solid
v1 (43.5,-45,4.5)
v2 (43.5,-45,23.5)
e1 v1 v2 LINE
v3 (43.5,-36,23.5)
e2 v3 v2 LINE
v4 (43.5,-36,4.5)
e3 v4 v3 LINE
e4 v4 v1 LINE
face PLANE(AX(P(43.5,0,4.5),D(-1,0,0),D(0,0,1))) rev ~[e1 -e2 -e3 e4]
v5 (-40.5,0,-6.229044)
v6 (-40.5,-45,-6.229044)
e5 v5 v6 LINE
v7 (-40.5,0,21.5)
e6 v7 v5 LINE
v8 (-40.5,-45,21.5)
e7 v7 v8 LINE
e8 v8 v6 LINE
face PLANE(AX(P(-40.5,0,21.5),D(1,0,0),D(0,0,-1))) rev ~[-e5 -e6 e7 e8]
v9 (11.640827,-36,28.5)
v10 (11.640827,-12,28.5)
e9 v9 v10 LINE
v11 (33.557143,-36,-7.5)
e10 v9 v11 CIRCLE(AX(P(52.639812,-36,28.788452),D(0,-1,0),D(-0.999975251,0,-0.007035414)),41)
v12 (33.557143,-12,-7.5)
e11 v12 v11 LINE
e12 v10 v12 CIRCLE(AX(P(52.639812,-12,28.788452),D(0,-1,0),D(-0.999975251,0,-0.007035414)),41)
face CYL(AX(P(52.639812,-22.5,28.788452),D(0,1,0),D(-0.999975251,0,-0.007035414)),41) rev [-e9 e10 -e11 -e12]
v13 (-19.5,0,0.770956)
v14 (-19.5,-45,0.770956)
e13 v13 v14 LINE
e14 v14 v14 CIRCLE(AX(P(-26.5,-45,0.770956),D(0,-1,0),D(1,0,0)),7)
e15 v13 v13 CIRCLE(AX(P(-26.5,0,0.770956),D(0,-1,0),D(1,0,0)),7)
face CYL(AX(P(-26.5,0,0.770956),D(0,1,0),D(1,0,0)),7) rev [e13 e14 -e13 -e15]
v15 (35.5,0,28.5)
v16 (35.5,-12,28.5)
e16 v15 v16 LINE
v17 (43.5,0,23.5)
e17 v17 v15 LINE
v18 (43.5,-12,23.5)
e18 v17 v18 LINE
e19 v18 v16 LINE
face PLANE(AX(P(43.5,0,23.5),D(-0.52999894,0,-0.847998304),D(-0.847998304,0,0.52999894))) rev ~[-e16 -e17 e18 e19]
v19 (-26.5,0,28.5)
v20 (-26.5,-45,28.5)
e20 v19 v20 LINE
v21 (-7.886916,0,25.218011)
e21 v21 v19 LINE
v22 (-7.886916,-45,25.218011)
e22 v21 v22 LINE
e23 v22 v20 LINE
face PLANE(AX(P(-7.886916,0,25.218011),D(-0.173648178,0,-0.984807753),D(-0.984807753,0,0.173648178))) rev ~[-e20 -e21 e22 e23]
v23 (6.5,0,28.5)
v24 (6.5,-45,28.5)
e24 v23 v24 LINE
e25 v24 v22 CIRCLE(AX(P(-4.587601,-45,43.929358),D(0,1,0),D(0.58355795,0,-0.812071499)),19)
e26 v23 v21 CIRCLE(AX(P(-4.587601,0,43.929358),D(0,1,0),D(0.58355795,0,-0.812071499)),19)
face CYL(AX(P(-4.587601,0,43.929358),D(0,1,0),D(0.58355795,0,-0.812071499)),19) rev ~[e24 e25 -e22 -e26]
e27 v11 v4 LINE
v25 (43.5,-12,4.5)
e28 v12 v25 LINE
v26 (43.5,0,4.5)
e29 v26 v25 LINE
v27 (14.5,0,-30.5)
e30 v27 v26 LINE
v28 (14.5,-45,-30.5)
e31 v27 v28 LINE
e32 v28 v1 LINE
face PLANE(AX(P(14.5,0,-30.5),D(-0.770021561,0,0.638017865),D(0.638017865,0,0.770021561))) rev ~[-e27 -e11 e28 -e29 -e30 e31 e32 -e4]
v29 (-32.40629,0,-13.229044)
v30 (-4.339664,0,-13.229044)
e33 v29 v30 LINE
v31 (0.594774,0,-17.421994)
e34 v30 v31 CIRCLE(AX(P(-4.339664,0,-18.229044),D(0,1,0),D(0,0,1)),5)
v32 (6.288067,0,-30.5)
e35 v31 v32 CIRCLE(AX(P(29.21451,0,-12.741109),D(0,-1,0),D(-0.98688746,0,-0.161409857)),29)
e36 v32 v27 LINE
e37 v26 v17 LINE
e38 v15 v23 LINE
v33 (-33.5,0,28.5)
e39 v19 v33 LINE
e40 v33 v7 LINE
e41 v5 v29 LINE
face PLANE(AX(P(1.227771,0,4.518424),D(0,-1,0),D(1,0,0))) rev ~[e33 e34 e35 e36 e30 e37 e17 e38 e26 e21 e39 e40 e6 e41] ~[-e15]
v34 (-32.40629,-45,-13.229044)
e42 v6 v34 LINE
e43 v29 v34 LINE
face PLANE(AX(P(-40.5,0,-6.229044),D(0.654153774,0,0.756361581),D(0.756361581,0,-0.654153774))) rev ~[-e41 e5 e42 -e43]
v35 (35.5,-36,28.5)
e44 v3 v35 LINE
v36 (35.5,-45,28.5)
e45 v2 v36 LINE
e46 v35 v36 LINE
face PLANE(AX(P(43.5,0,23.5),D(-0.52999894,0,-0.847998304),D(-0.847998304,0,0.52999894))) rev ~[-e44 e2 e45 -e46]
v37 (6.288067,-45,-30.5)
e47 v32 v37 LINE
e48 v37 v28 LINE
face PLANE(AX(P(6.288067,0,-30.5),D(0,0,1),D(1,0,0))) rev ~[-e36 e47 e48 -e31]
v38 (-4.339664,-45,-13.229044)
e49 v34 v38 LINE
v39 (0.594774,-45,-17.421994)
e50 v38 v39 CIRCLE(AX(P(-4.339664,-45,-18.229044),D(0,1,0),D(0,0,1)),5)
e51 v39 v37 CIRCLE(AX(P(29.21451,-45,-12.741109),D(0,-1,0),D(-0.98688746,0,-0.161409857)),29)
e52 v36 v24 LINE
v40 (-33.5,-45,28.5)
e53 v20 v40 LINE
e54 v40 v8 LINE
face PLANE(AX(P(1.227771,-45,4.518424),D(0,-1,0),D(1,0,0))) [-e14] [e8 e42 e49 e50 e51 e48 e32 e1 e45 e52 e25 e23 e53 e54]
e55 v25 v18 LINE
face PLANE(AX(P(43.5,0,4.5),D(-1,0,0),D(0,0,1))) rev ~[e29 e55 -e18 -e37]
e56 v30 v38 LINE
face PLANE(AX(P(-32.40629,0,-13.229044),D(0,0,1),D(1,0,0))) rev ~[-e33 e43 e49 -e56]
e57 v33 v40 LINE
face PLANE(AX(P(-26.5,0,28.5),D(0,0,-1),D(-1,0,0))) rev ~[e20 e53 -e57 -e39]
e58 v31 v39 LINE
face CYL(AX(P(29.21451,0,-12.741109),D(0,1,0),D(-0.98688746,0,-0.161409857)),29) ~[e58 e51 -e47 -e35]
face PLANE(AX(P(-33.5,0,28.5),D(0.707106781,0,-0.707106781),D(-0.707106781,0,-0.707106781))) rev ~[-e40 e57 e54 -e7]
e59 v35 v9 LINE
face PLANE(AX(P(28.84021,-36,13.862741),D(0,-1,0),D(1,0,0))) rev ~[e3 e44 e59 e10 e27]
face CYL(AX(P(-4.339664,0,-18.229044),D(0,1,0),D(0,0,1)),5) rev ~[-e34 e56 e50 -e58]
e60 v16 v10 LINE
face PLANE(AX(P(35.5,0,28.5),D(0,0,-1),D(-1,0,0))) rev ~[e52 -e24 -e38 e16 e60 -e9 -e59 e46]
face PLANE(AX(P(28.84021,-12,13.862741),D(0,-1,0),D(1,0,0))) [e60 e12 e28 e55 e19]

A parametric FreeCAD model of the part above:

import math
import FreeCAD as App
import Part
import Sketcher

V = App.Vector
Q = App.Units.Quantity

doc = App.newDocument("Part")
body = doc.addObject("PartDesign::Body", "Body")

sketch1 = body.newObject("Sketcher::SketchObject", "Sketch")
sketch1.AttachmentSupport = (doc.getObject("XZ_Plane"), [""])
sketch1.MapMode = "FlatFace"
sketch1.addGeometry([
    Part.LineSegment(V(-34, 28, 0), V(-40, 22, 0)),
    Part.LineSegment(V(-40, 22, 0), V(-40, -6, 0)),
    Part.LineSegment(V(-40, -6, 0), V(-32, -13, 0)),
    Part.LineSegment(V(-32, -13, 0), V(-4, -13, 0)),
    Part.ArcOfCircle(Part.Circle(V(-4, -18, 0), V(0, 0, 1), 5), math.radians(9), math.radians(90)),
    Part.ArcOfCircle(Part.Circle(V(29, -13, 0), V(0, 0, 1), 29), math.radians(-171), math.radians(-142)),
    Part.LineSegment(V(6, -30, 0), V(14, -30, 0)),
    Part.LineSegment(V(14, -30, 0), V(44, 4, 0)),
    Part.LineSegment(V(44, 4, 0), V(44, 24, 0)),
    Part.LineSegment(V(44, 24, 0), V(36, 28, 0)),
    Part.LineSegment(V(36, 28, 0), V(6, 28, 0)),
    Part.ArcOfCircle(Part.Circle(V(-5, 44, 0), V(0, 0, 1), 19), math.radians(-100), math.radians(-54)),
    Part.LineSegment(V(-8, 25, 0), V(-26, 28, 0)),
    Part.LineSegment(V(-26, 28, 0), V(-34, 28, 0)),
    Part.Circle(V(-26, 1, 0), V(0, 0, 1), 7),
], False)
sketch1.addConstraint([
    Sketcher.Constraint("Coincident", 0, 2, 1, 1),
    Sketcher.Constraint("Coincident", 1, 2, 2, 1),
    Sketcher.Constraint("Coincident", 2, 2, 3, 1),
    Sketcher.Constraint("Tangent", 3, 2, 4, 2),
    Sketcher.Constraint("Tangent", 4, 1, 5, 1),
    Sketcher.Constraint("Coincident", 5, 2, 6, 1),
    Sketcher.Constraint("Coincident", 6, 2, 7, 1),
    Sketcher.Constraint("Coincident", 7, 2, 8, 1),
    Sketcher.Constraint("Coincident", 8, 2, 9, 1),
    Sketcher.Constraint("Coincident", 9, 2, 10, 1),
    Sketcher.Constraint("Coincident", 10, 2, 11, 2),
    Sketcher.Constraint("Tangent", 11, 1, 12, 1),
    Sketcher.Constraint("Coincident", 12, 2, 13, 1),
    Sketcher.Constraint("Coincident", 13, 2, 0, 1),
    Sketcher.Constraint("Vertical", 1),
    Sketcher.Constraint("Horizontal", 3),
    Sketcher.Constraint("Horizontal", 6),
    Sketcher.Constraint("Vertical", 8),
    Sketcher.Constraint("Horizontal", 10),
    Sketcher.Constraint("Horizontal", 13),
    Sketcher.Constraint("Horizontal", 10, 2, 12, 2),
    Sketcher.Constraint("Vertical", 14, 3, 12, 2),
    Sketcher.Constraint("Diameter", 14, 14.0),
    Sketcher.Constraint("Radius", 4, 5.0),
    Sketcher.Constraint("Radius", 5, 29.0),
    Sketcher.Constraint("Radius", 11, 19.0),
    Sketcher.Constraint("DistanceX", 10, 2, 10, 1, 29.0),
    Sketcher.Constraint("DistanceX", 13, 2, 13, 1, 7.0),
    Sketcher.Constraint("DistanceY", 8, 1, 8, 2, 19.0),
    Sketcher.Constraint("Angle", 0, Q("-135 deg")),
    Sketcher.Constraint("Angle", 12, Q("170 deg")),
    Sketcher.Constraint("DistanceY", 4, 3, 14, 3, 19.0),
    Sketcher.Constraint("DistanceX", 0, 2, 14, 3, 14.0),
    Sketcher.Constraint("DistanceY", 1, 2, 14, 3, 7.0),
    Sketcher.Constraint("DistanceX", 6, 2, 7, 2, 29.0),
    Sketcher.Constraint("DistanceY", 6, 2, 7, 2, 35.0),
    Sketcher.Constraint("DistanceX", 9, 2, 8, 2, 8.0),
    Sketcher.Constraint("DistanceY", 8, 2, 9, 2, 5.0),
    Sketcher.Constraint("DistanceX", 14, 3, 10, 2, 33.0),
    Sketcher.Constraint("DistanceX", 14, 3, -1, 1, 26.5),
    Sketcher.Constraint("DistanceY", -1, 1, 0, 2, 21.5),
    Sketcher.Constraint("DistanceX", 2, 2, 5, 3, 61.6208),
    Sketcher.Constraint("DistanceX", 3, 1, 3, 2, 28.066626),
    Sketcher.Constraint("DistanceX", 6, 1, 6, 2, 8.211933),
    Sketcher.Constraint("DistanceY", 1, 2, 1, 1, 27.729044),
])
pad1 = body.newObject("PartDesign::Pad", "Pad")
pad1.Profile = sketch1
pad1.Length = 45

sketch2 = body.newObject("Sketcher::SketchObject", "Sketch001")
sketch2.AttachmentSupport = (doc.getObject("XZ_Plane"), [""])
sketch2.MapMode = "FlatFace"
sketch2.AttachmentOffset = App.Placement(V(0, 0, 22.5), App.Rotation())
sketch2.addGeometry([
    Part.LineSegment(V(36, 28, 0), V(12, 28, 0)),
    Part.ArcOfCircle(Part.Circle(V(53, 29, 0), V(0, 0, 1), 41), math.radians(-180), math.radians(-118)),
    Part.LineSegment(V(34, -8, 0), V(44, 4, 0)),
    Part.LineSegment(V(44, 4, 0), V(44, 24, 0)),
    Part.LineSegment(V(44, 24, 0), V(36, 28, 0)),
], False)
sketch2.addConstraint([
    Sketcher.Constraint("Coincident", 0, 2, 1, 1),
    Sketcher.Constraint("Coincident", 1, 2, 2, 1),
    Sketcher.Constraint("Coincident", 2, 2, 3, 1),
    Sketcher.Constraint("Coincident", 3, 2, 4, 1),
    Sketcher.Constraint("Coincident", 4, 2, 0, 1),
    Sketcher.Constraint("Horizontal", 0),
    Sketcher.Constraint("Vertical", 3),
    Sketcher.Constraint("Radius", 1, 41.0),
    Sketcher.Constraint("DistanceY", 3, 1, 3, 2, 19.0),
    Sketcher.Constraint("DistanceY", 1, 2, 0, 2, 36.0),
    Sketcher.Constraint("DistanceY", 1, 2, 2, 2, 12.0),
    Sketcher.Constraint("DistanceX", 4, 2, 3, 2, 8.0),
    Sketcher.Constraint("DistanceY", -1, 1, 0, 2, 28.5),
    Sketcher.Constraint("DistanceX", -1, 1, 2, 2, 43.5),
    Sketcher.Constraint("Distance", 2, 15.583979),
    Sketcher.Constraint("DistanceX", 0, 2, 0, 1, 23.859173),
])
pocket1 = body.newObject("PartDesign::Pocket", "Pocket")
pocket1.Profile = sketch2
pocket1.Type = "TwoLengths"
pocket1.Length = 10.5
pocket1.Length2 = 13.5

doc.recompute()
